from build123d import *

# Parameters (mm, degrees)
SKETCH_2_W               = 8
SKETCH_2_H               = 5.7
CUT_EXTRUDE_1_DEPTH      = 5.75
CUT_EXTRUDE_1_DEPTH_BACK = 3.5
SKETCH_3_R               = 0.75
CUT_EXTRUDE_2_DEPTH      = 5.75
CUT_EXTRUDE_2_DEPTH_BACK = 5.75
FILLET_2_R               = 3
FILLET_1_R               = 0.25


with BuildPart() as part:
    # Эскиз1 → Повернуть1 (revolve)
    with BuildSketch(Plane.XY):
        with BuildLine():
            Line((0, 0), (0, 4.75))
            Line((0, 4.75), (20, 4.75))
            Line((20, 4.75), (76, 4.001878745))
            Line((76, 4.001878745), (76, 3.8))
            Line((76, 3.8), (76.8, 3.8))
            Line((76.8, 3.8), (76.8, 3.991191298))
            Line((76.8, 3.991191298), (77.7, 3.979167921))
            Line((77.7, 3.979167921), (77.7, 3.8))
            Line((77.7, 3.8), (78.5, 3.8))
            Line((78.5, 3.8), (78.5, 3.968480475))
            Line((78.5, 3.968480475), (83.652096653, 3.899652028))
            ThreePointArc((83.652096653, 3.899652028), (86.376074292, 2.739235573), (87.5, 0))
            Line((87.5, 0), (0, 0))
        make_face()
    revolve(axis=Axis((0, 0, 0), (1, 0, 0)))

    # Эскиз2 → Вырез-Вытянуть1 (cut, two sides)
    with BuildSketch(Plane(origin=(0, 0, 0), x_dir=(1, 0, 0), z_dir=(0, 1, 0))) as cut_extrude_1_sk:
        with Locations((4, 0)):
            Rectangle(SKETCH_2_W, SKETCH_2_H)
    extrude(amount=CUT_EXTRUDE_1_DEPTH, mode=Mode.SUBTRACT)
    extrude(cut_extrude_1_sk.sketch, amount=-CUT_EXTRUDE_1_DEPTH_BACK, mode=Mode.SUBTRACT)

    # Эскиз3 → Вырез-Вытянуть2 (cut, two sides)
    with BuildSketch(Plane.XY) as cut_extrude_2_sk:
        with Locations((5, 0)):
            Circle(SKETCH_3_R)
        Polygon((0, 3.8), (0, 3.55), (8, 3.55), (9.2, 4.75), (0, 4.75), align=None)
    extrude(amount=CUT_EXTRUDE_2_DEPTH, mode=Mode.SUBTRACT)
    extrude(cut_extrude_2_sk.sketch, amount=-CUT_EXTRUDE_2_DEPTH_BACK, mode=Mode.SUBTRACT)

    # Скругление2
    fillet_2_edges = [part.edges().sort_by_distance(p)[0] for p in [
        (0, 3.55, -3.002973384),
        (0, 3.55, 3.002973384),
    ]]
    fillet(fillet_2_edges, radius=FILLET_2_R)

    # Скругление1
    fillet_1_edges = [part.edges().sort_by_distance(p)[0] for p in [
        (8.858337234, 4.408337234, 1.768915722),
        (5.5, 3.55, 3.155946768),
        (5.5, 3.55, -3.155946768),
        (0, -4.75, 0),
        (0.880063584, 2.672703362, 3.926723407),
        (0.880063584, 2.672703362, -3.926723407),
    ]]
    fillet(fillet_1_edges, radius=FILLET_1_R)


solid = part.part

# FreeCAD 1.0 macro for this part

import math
import FreeCAD as App
import Part
import Sketcher

V = App.Vector
Q = App.Units.Quantity


def edges_at(feature, points):
    """Names of the edges that pass closest to the given points."""
    edges = feature.Shape.Edges
    near = lambda p: min(range(len(edges)), key=lambda i: edges[i].distToShape(Part.Vertex(*p))[0])
    return sorted({f"Edge{near(p) + 1}" for p in points})


def add_polygon(sketch, points):
    """Adds a closed chain of lines whose ends are joined by coincident constraints."""
    first, n = sketch.GeometryCount, len(points)
    for a, b in zip(points, points[1:] + points[:1]):
        sketch.addGeometry(Part.LineSegment(App.Vector(*a, 0), App.Vector(*b, 0)), False)
    for i in range(n):
        sketch.addConstraint(Sketcher.Constraint("Coincident", first + i, 2, first + (i + 1) % n, 1))

doc = App.newDocument("Part")
params = doc.addObject("Spreadsheet::Sheet", "Params")
for row, (alias, value) in enumerate([
    ("sketch1_radius", "3.9 mm"),
    ("sketch1_width", "20 mm"),
    ("sketch1_width2", "87.5 mm"),
    ("sketch1_width3", "0.8 mm"),
    ("sketch1_height", "4.75 mm"),
    ("revolution_angle", "360 deg"),
    ("sketch2_width", "8 mm"),
    ("sketch2_height", "5.7 mm"),
    ("pocket1_length", "5.75 mm"),
    ("pocket1_length2", "3.5 mm"),
    ("sketch3_diameter", "1.5 mm"),
    ("sketch3_width", "8 mm"),
    ("sketch3_width2", "9.2 mm"),
    ("fillet_radius", "3 mm"),
    ("fillet2_radius", "0.25 mm"),
], start=1):
    params.set(f"A{row}", alias)
    params.set(f"B{row}", "=" + value)
    params.setAlias(f"B{row}", alias)

body = doc.addObject("PartDesign::Body", "Body")

# Sketch on XY plane
sketch1 = doc.addObject("Sketcher::SketchObject", "Sketch")
body.addObject(sketch1)
sketch1.AttachmentSupport = (doc.XY_Plane, [""])
sketch1.MapMode = "FlatFace"
sketch1.addGeometry([
    Part.LineSegment(V(0, 4.75, 0), V(0, 0, 0)),  # 0
    Part.LineSegment(V(0, 0, 0), V(87.5, 0, 0)),  # 1
    Part.ArcOfCircle(Part.Circle(V(83.6, 0, 0), V(0, 0, 1), 3.9), math.radians(0), math.radians(89)),  # 2
    Part.LineSegment(V(83.65, 3.9, 0), V(78.5, 3.97, 0)),  # 3
    Part.LineSegment(V(78.5, 3.97, 0), V(78.5, 3.8, 0)),  # 4
    Part.LineSegment(V(78.5, 3.8, 0), V(77.7, 3.8, 0)),  # 5
    Part.LineSegment(V(77.7, 3.8, 0), V(77.7, 3.98, 0)),  # 6
    Part.LineSegment(V(77.7, 3.98, 0), V(76.8, 3.99, 0)),  # 7
    Part.LineSegment(V(76.8, 3.99, 0), V(76.8, 3.8, 0)),  # 8
    Part.LineSegment(V(76.8, 3.8, 0), V(76, 3.8, 0)),  # 9
    Part.LineSegment(V(76, 3.8, 0), V(76, 4, 0)),  # 10
    Part.LineSegment(V(76, 4, 0), V(20, 4.75, 0)),  # 11
    Part.LineSegment(V(20, 4.75, 0), V(0, 4.75, 0)),  # 12
], False)
sketch1.addConstraint([
    Sketcher.Constraint("Coincident", 0, 2, 1, 1),
    Sketcher.Constraint("Coincident", 1, 2, 2, 1),
    Sketcher.Constraint("Tangent", 2, 2, 3, 1),
    Sketcher.Constraint("Coincident", 3, 2, 4, 1),
    Sketcher.Constraint("Coincident", 4, 2, 5, 1),
    Sketcher.Constraint("Coincident", 5, 2, 6, 1),
    Sketcher.Constraint("Coincident", 6, 2, 7, 1),
    Sketcher.Constraint("Coincident", 7, 2, 8, 1),
    Sketcher.Constraint("Coincident", 8, 2, 9, 1),
    Sketcher.Constraint("Coincident", 9, 2, 10, 1),
    Sketcher.Constraint("Coincident", 10, 2, 11, 1),
    Sketcher.Constraint("Coincident", 11, 2, 12, 1),
    Sketcher.Constraint("Coincident", 12, 2, 0, 1),
    Sketcher.Constraint("Vertical", 0),
    Sketcher.Constraint("Horizontal", 1),
    Sketcher.Constraint("Vertical", 4),
    Sketcher.Constraint("Horizontal", 5),
    Sketcher.Constraint("Vertical", 6),
    Sketcher.Constraint("Vertical", 8),
    Sketcher.Constraint("Horizontal", 9),
    Sketcher.Constraint("Vertical", 10),
    Sketcher.Constraint("Horizontal", 12),
    Sketcher.Constraint("Coincident", 0, 2, -1, 1),
    Sketcher.Constraint("PointOnObject", 2, 3, -1),
    Sketcher.Constraint("Parallel", 3, 7),
    Sketcher.Constraint("Parallel", 7, 11),
    Sketcher.Constraint("Horizontal", 5, 2, 8, 2),
    Sketcher.Constraint("Equal", 5, 9),
    Sketcher.Constraint("Radius", 2, Q("3.9 mm")),
    Sketcher.Constraint("DistanceX", 12, 2, 12, 1, Q("20 mm")),
    Sketcher.Constraint("DistanceX", 1, 1, 1, 2, Q("87.5 mm")),
    Sketcher.Constraint("DistanceX", 5, 2, 5, 1, Q("0.8 mm")),
    Sketcher.Constraint("DistanceX", -1, 1, 9, 2, Q("76 mm")),
    Sketcher.Constraint("DistanceX", 3, 2, 1, 2, Q("9 mm")),
    Sketcher.Constraint("DistanceY", 0, 2, 0, 1, Q("4.75 mm")),
    Sketcher.Constraint("DistanceY", -1, 1, 4, 2, Q("3.8 mm")),
    Sketcher.Constraint("DistanceY", 4, 2, 4, 1, Q("0.16848 mm")),
    Sketcher.Constraint("DistanceY", 8, 2, 8, 1, Q("0.191191 mm")),
])
sketch1.setExpression("Constraints[28]", "Params.sketch1_radius")
sketch1.setExpression("Constraints[29]", "Params.sketch1_width")
sketch1.setExpression("Constraints[30]", "Params.sketch1_width2")
sketch1.setExpression("Constraints[31]", "Params.sketch1_width3")
sketch1.setExpression("Constraints[34]", "Params.sketch1_height")
revolution = doc.addObject("PartDesign::Revolution", "Revolution")
body.addObject(revolution)
revolution.Profile = sketch1
revolution.ReferenceAxis = (sketch1, ["H_Axis"])
revolution.setExpression("Angle", "Params.revolution_angle")

# Sketch on XZ plane
sketch2 = doc.addObject("Sketcher::SketchObject", "Sketch001")
body.addObject(sketch2)
sketch2.AttachmentSupport = (doc.XZ_Plane, [""])
sketch2.MapMode = "FlatFace"
add_polygon(sketch2, [(0, -3), (0, 3), (8, 3), (8, -3)])  # lines 0-3
sketch2.addConstraint([
    Sketcher.Constraint("Vertical", 0),
    Sketcher.Constraint("Horizontal", 1),
    Sketcher.Constraint("Vertical", 2),
    Sketcher.Constraint("Horizontal", 3),
    Sketcher.Constraint("Symmetric", 0, 2, 3, 2, -1, 1),
    Sketcher.Constraint("DistanceX", 1, 1, 1, 2, Q("8 mm")),
    Sketcher.Constraint("DistanceY", 0, 1, 0, 2, Q("5.7 mm")),
])
sketch2.setExpression("Constraints[9]", "Params.sketch2_width")
sketch2.setExpression("Constraints[10]", "Params.sketch2_height")
pocket1 = doc.addObject("PartDesign::Pocket", "Pocket")
body.addObject(pocket1)
pocket1.Profile = sketch2
pocket1.Type = "TwoLengths"
pocket1.setExpression("Length", "Params.pocket1_length")
pocket1.setExpression("Length2", "Params.pocket1_length2")

# Sketch on XY plane
sketch3 = doc.addObject("Sketcher::SketchObject", "Sketch002")
body.addObject(sketch3)
sketch3.AttachmentSupport = (doc.XY_Plane, [""])
sketch3.MapMode = "FlatFace"
sketch3.addGeometry(Part.Circle(V(5, 0, 0), V(0, 0, 1), 0.8), False)  # 0
add_polygon(sketch3, [(0, 3.5), (8, 3.5), (9.2, 4.8), (0, 4.8)])  # lines 1-4
sketch3.addConstraint([
    Sketcher.Constraint("Horizontal", 1),
    Sketcher.Constraint("Horizontal", 3),
    Sketcher.Constraint("Vertical", 4),
    Sketcher.Constraint("PointOnObject", 0, 3, -1),
    Sketcher.Constraint("PointOnObject", 3, 2, -2),
    Sketcher.Constraint("Diameter", 0, Q("1.5 mm")),
    Sketcher.Constraint("DistanceX", 1, 1, 1, 2, Q("8 mm")),
    Sketcher.Constraint("Angle", 2, Q("45 deg")),
    Sketcher.Constraint("DistanceX", 3, 2, 3, 1, Q("9.2 mm")),
    Sketcher.Constraint("DistanceX", -1, 1, 0, 3, Q("5 mm")),
    Sketcher.Constraint("DistanceY", -1, 1, 1, 2, Q("3.55 mm")),
])
sketch3.setExpression("Constraints[9]", "Params.sketch3_diameter")
sketch3.setExpression("Constraints[10]", "Params.sketch3_width")
sketch3.setExpression("Constraints[12]", "Params.sketch3_width2")
pocket2 = doc.addObject("PartDesign::Pocket", "Pocket001")
body.addObject(pocket2)
pocket2.Profile = sketch3
pocket2.Type = "ThroughAll"
pocket2.Midplane = True
doc.recompute()

fillet = doc.addObject("PartDesign::Fillet", "Fillet")
body.addObject(fillet)
fillet.Base = (pocket2, edges_at(pocket2, [(0, 3.55, -3.003), (0, 3.55, 3.003)]))
fillet.setExpression("Radius", "Params.fillet_radius")
doc.recompute()

fillet2 = doc.addObject("PartDesign::Fillet", "Fillet001")
body.addObject(fillet2)
fillet2.Base = (fillet, edges_at(fillet, [
    (8.858, 4.408, 1.769),
    (5.5, 3.55, 3.156),
    (5.5, 3.55, -3.156),
    (0, -4.75, 0),
    (0.88, 2.673, 3.927),
    (0.88, 2.673, -3.927),
]))
fillet2.setExpression("Radius", "Params.fillet2_radius")

doc.recompute()
